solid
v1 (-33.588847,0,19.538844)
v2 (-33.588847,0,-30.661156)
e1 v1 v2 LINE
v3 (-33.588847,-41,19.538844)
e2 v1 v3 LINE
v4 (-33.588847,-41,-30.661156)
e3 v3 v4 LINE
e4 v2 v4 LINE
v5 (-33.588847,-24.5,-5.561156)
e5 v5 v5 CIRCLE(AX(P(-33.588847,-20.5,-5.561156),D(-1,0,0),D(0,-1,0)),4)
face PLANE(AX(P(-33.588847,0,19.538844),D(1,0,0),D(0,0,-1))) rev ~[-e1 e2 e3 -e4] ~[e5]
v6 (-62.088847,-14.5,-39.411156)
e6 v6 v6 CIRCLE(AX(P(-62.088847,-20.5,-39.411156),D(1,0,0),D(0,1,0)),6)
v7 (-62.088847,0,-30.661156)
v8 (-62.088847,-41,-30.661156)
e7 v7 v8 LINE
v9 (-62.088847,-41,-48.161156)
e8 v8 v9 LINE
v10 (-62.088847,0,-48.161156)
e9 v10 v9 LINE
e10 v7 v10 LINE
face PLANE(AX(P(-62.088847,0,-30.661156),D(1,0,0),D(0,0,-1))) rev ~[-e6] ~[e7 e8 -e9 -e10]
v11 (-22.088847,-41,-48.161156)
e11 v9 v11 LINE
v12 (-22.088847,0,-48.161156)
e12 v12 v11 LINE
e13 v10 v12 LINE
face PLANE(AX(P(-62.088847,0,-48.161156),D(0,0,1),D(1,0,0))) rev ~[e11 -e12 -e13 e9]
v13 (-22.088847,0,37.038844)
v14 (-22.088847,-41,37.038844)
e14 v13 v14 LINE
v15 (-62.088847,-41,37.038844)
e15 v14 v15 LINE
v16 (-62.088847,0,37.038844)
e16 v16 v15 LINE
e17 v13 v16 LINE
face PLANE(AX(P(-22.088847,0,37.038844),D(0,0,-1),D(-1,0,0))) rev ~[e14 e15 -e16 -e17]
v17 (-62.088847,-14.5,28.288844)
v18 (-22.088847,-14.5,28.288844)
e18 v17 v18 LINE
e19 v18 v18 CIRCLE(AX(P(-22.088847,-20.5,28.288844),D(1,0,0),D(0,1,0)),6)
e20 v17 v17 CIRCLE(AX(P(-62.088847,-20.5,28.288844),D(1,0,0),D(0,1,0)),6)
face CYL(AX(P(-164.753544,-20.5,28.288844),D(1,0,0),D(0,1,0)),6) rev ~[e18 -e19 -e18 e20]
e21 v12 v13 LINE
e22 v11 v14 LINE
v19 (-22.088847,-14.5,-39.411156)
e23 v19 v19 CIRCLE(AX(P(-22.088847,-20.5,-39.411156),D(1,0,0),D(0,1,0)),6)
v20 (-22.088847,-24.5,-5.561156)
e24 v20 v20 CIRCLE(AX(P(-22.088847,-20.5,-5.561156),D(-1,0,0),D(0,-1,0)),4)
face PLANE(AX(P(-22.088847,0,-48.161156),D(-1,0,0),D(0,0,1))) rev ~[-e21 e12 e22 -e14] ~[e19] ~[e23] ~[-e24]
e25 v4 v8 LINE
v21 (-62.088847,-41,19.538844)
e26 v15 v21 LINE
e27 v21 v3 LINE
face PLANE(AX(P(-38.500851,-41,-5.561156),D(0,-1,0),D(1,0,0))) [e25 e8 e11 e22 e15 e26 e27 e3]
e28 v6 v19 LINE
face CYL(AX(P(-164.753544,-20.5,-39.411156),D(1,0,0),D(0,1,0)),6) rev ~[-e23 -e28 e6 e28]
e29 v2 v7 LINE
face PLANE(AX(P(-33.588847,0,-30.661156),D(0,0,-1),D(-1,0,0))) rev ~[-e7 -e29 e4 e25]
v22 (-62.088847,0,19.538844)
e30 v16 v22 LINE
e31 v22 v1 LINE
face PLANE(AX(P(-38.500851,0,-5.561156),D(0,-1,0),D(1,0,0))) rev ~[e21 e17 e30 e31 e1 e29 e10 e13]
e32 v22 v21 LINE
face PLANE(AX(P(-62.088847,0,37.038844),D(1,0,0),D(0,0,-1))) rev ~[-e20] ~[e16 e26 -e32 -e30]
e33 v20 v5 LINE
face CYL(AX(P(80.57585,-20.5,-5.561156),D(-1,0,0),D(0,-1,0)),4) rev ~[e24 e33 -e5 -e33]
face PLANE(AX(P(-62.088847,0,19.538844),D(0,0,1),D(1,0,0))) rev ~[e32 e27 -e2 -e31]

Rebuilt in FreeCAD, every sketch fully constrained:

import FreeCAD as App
import Part
import Sketcher

V = App.Vector


def add_polygon(sketch, points):
    """Adds a closed chain of lines whose ends are joined by coincident constraints."""
    first, n = sketch.GeometryCount, len(points)
    for a, b in zip(points, points[1:] + points[:1]):
        sketch.addGeometry(Part.LineSegment(App.Vector(*a, 0), App.Vector(*b, 0)), False)
    for i in range(n):
        sketch.addConstraint(Sketcher.Constraint("Coincident", first + i, 2, first + (i + 1) % n, 1))

doc = App.newDocument("Part")
body = doc.addObject("PartDesign::Body", "Body")

sketch1 = doc.addObject("Sketcher::SketchObject", "Sketch")
body.addObject(sketch1)
sketch1.AttachmentSupport = (doc.XZ_Plane, [""])
sketch1.MapMode = "FlatFace"
add_polygon(sketch1, [(-22, 37), (-62, 37), (-62, 20), (-34, 20), (-34, -31), (-62, -31), (-62, -48), (-22, -48)])
sketch1.addConstraint([
    Sketcher.Constraint("Horizontal", 0),
    Sketcher.Constraint("Vertical", 1),
    Sketcher.Constraint("Horizontal", 2),
    Sketcher.Constraint("Vertical", 3),
    Sketcher.Constraint("Horizontal", 4),
    Sketcher.Constraint("Vertical", 5),
    Sketcher.Constraint("Horizontal", 6),
    Sketcher.Constraint("Vertical", 7),
    Sketcher.Constraint("Vertical", 1, 2, 4, 2),
    Sketcher.Constraint("Equal", 1, 5),
    Sketcher.Constraint("DistanceX", 0, 2, 0, 1, 40.0),
    Sketcher.Constraint("DistanceX", 2, 1, 2, 2, 28.5),
    Sketcher.Constraint("DistanceY", 1, 2, 1, 1, 17.5),
    Sketcher.Constraint("DistanceY", 3, 2, 3, 1, 50.2),
    Sketcher.Constraint("DistanceX", 0, 2, -1, 1, 62.088847),
    Sketcher.Constraint("DistanceY", -1, 1, 0, 2, 37.038844),
])
pad1 = doc.addObject("PartDesign::Pad", "Pad")
body.addObject(pad1)
pad1.Profile = sketch1
pad1.Length = 41

sketch2 = doc.addObject("Sketcher::SketchObject", "Sketch001")
body.addObject(sketch2)
sketch2.AttachmentSupport = (doc.YZ_Plane, [""])
sketch2.MapMode = "FlatFace"
sketch2.AttachmentOffset = App.Placement(V(0, 0, -62.088847), App.Rotation())
sketch2.addGeometry(Part.Circle(V(-20, 28, 0), V(0, 0, 1), 6), False)
sketch2.addConstraint([
    Sketcher.Constraint("Diameter", 0, 12.0),
    Sketcher.Constraint("DistanceX", 0, 3, -1, 1, 20.5),
    Sketcher.Constraint("DistanceY", -1, 1, 0, 3, 28.288844),
])
doc.recompute()
hole = doc.addObject("PartDesign::Hole", "Hole")
body.addObject(hole)
hole.Profile = sketch2
hole.ThreadType = "None"
hole.Diameter = 12
hole.DepthType = "ThroughAll"
hole.Reversed = True

sketch3 = doc.addObject("Sketcher::SketchObject", "Sketch002")
body.addObject(sketch3)
sketch3.AttachmentSupport = (doc.YZ_Plane, [""])
sketch3.MapMode = "FlatFace"
sketch3.AttachmentOffset = App.Placement(V(0, 0, -62.088847), App.Rotation())
sketch3.addGeometry(Part.Circle(V(-20, -39, 0), V(0, 0, 1), 6), False)
sketch3.addConstraint([
    Sketcher.Constraint("Diameter", 0, 12.0),
    Sketcher.Constraint("DistanceX", 0, 3, -1, 1, 20.5),
    Sketcher.Constraint("DistanceY", 0, 3, -1, 1, 39.411156),
])
doc.recompute()
hole2 = doc.addObject("PartDesign::Hole", "Hole001")
body.addObject(hole2)
hole2.Profile = sketch3
hole2.ThreadType = "None"
hole2.Diameter = 12
hole2.DepthType = "ThroughAll"
hole2.Reversed = True

sketch4 = doc.addObject("Sketcher::SketchObject", "Sketch003")
body.addObject(sketch4)
sketch4.AttachmentSupport = (doc.YZ_Plane, [""])
sketch4.MapMode = "FlatFace"
sketch4.AttachmentOffset = App.Placement(V(0, 0, -22.088847), App.Rotation())
sketch4.addGeometry(Part.Circle(V(-20.5, -5.6, 0), V(0, 0, 1), 4), False)
sketch4.addConstraint([
    Sketcher.Constraint("Diameter", 0, 8.0),
    Sketcher.Constraint("DistanceX", 0, 3, -1, 1, 20.5),
    Sketcher.Constraint("DistanceY", 0, 3, -1, 1, 5.561156),
])
doc.recompute()
hole3 = doc.addObject("PartDesign::Hole", "Hole002")
body.addObject(hole3)
hole3.Profile = sketch4
hole3.ThreadType = "None"
hole3.Diameter = 8
hole3.DepthType = "ThroughAll"

doc.recompute()
